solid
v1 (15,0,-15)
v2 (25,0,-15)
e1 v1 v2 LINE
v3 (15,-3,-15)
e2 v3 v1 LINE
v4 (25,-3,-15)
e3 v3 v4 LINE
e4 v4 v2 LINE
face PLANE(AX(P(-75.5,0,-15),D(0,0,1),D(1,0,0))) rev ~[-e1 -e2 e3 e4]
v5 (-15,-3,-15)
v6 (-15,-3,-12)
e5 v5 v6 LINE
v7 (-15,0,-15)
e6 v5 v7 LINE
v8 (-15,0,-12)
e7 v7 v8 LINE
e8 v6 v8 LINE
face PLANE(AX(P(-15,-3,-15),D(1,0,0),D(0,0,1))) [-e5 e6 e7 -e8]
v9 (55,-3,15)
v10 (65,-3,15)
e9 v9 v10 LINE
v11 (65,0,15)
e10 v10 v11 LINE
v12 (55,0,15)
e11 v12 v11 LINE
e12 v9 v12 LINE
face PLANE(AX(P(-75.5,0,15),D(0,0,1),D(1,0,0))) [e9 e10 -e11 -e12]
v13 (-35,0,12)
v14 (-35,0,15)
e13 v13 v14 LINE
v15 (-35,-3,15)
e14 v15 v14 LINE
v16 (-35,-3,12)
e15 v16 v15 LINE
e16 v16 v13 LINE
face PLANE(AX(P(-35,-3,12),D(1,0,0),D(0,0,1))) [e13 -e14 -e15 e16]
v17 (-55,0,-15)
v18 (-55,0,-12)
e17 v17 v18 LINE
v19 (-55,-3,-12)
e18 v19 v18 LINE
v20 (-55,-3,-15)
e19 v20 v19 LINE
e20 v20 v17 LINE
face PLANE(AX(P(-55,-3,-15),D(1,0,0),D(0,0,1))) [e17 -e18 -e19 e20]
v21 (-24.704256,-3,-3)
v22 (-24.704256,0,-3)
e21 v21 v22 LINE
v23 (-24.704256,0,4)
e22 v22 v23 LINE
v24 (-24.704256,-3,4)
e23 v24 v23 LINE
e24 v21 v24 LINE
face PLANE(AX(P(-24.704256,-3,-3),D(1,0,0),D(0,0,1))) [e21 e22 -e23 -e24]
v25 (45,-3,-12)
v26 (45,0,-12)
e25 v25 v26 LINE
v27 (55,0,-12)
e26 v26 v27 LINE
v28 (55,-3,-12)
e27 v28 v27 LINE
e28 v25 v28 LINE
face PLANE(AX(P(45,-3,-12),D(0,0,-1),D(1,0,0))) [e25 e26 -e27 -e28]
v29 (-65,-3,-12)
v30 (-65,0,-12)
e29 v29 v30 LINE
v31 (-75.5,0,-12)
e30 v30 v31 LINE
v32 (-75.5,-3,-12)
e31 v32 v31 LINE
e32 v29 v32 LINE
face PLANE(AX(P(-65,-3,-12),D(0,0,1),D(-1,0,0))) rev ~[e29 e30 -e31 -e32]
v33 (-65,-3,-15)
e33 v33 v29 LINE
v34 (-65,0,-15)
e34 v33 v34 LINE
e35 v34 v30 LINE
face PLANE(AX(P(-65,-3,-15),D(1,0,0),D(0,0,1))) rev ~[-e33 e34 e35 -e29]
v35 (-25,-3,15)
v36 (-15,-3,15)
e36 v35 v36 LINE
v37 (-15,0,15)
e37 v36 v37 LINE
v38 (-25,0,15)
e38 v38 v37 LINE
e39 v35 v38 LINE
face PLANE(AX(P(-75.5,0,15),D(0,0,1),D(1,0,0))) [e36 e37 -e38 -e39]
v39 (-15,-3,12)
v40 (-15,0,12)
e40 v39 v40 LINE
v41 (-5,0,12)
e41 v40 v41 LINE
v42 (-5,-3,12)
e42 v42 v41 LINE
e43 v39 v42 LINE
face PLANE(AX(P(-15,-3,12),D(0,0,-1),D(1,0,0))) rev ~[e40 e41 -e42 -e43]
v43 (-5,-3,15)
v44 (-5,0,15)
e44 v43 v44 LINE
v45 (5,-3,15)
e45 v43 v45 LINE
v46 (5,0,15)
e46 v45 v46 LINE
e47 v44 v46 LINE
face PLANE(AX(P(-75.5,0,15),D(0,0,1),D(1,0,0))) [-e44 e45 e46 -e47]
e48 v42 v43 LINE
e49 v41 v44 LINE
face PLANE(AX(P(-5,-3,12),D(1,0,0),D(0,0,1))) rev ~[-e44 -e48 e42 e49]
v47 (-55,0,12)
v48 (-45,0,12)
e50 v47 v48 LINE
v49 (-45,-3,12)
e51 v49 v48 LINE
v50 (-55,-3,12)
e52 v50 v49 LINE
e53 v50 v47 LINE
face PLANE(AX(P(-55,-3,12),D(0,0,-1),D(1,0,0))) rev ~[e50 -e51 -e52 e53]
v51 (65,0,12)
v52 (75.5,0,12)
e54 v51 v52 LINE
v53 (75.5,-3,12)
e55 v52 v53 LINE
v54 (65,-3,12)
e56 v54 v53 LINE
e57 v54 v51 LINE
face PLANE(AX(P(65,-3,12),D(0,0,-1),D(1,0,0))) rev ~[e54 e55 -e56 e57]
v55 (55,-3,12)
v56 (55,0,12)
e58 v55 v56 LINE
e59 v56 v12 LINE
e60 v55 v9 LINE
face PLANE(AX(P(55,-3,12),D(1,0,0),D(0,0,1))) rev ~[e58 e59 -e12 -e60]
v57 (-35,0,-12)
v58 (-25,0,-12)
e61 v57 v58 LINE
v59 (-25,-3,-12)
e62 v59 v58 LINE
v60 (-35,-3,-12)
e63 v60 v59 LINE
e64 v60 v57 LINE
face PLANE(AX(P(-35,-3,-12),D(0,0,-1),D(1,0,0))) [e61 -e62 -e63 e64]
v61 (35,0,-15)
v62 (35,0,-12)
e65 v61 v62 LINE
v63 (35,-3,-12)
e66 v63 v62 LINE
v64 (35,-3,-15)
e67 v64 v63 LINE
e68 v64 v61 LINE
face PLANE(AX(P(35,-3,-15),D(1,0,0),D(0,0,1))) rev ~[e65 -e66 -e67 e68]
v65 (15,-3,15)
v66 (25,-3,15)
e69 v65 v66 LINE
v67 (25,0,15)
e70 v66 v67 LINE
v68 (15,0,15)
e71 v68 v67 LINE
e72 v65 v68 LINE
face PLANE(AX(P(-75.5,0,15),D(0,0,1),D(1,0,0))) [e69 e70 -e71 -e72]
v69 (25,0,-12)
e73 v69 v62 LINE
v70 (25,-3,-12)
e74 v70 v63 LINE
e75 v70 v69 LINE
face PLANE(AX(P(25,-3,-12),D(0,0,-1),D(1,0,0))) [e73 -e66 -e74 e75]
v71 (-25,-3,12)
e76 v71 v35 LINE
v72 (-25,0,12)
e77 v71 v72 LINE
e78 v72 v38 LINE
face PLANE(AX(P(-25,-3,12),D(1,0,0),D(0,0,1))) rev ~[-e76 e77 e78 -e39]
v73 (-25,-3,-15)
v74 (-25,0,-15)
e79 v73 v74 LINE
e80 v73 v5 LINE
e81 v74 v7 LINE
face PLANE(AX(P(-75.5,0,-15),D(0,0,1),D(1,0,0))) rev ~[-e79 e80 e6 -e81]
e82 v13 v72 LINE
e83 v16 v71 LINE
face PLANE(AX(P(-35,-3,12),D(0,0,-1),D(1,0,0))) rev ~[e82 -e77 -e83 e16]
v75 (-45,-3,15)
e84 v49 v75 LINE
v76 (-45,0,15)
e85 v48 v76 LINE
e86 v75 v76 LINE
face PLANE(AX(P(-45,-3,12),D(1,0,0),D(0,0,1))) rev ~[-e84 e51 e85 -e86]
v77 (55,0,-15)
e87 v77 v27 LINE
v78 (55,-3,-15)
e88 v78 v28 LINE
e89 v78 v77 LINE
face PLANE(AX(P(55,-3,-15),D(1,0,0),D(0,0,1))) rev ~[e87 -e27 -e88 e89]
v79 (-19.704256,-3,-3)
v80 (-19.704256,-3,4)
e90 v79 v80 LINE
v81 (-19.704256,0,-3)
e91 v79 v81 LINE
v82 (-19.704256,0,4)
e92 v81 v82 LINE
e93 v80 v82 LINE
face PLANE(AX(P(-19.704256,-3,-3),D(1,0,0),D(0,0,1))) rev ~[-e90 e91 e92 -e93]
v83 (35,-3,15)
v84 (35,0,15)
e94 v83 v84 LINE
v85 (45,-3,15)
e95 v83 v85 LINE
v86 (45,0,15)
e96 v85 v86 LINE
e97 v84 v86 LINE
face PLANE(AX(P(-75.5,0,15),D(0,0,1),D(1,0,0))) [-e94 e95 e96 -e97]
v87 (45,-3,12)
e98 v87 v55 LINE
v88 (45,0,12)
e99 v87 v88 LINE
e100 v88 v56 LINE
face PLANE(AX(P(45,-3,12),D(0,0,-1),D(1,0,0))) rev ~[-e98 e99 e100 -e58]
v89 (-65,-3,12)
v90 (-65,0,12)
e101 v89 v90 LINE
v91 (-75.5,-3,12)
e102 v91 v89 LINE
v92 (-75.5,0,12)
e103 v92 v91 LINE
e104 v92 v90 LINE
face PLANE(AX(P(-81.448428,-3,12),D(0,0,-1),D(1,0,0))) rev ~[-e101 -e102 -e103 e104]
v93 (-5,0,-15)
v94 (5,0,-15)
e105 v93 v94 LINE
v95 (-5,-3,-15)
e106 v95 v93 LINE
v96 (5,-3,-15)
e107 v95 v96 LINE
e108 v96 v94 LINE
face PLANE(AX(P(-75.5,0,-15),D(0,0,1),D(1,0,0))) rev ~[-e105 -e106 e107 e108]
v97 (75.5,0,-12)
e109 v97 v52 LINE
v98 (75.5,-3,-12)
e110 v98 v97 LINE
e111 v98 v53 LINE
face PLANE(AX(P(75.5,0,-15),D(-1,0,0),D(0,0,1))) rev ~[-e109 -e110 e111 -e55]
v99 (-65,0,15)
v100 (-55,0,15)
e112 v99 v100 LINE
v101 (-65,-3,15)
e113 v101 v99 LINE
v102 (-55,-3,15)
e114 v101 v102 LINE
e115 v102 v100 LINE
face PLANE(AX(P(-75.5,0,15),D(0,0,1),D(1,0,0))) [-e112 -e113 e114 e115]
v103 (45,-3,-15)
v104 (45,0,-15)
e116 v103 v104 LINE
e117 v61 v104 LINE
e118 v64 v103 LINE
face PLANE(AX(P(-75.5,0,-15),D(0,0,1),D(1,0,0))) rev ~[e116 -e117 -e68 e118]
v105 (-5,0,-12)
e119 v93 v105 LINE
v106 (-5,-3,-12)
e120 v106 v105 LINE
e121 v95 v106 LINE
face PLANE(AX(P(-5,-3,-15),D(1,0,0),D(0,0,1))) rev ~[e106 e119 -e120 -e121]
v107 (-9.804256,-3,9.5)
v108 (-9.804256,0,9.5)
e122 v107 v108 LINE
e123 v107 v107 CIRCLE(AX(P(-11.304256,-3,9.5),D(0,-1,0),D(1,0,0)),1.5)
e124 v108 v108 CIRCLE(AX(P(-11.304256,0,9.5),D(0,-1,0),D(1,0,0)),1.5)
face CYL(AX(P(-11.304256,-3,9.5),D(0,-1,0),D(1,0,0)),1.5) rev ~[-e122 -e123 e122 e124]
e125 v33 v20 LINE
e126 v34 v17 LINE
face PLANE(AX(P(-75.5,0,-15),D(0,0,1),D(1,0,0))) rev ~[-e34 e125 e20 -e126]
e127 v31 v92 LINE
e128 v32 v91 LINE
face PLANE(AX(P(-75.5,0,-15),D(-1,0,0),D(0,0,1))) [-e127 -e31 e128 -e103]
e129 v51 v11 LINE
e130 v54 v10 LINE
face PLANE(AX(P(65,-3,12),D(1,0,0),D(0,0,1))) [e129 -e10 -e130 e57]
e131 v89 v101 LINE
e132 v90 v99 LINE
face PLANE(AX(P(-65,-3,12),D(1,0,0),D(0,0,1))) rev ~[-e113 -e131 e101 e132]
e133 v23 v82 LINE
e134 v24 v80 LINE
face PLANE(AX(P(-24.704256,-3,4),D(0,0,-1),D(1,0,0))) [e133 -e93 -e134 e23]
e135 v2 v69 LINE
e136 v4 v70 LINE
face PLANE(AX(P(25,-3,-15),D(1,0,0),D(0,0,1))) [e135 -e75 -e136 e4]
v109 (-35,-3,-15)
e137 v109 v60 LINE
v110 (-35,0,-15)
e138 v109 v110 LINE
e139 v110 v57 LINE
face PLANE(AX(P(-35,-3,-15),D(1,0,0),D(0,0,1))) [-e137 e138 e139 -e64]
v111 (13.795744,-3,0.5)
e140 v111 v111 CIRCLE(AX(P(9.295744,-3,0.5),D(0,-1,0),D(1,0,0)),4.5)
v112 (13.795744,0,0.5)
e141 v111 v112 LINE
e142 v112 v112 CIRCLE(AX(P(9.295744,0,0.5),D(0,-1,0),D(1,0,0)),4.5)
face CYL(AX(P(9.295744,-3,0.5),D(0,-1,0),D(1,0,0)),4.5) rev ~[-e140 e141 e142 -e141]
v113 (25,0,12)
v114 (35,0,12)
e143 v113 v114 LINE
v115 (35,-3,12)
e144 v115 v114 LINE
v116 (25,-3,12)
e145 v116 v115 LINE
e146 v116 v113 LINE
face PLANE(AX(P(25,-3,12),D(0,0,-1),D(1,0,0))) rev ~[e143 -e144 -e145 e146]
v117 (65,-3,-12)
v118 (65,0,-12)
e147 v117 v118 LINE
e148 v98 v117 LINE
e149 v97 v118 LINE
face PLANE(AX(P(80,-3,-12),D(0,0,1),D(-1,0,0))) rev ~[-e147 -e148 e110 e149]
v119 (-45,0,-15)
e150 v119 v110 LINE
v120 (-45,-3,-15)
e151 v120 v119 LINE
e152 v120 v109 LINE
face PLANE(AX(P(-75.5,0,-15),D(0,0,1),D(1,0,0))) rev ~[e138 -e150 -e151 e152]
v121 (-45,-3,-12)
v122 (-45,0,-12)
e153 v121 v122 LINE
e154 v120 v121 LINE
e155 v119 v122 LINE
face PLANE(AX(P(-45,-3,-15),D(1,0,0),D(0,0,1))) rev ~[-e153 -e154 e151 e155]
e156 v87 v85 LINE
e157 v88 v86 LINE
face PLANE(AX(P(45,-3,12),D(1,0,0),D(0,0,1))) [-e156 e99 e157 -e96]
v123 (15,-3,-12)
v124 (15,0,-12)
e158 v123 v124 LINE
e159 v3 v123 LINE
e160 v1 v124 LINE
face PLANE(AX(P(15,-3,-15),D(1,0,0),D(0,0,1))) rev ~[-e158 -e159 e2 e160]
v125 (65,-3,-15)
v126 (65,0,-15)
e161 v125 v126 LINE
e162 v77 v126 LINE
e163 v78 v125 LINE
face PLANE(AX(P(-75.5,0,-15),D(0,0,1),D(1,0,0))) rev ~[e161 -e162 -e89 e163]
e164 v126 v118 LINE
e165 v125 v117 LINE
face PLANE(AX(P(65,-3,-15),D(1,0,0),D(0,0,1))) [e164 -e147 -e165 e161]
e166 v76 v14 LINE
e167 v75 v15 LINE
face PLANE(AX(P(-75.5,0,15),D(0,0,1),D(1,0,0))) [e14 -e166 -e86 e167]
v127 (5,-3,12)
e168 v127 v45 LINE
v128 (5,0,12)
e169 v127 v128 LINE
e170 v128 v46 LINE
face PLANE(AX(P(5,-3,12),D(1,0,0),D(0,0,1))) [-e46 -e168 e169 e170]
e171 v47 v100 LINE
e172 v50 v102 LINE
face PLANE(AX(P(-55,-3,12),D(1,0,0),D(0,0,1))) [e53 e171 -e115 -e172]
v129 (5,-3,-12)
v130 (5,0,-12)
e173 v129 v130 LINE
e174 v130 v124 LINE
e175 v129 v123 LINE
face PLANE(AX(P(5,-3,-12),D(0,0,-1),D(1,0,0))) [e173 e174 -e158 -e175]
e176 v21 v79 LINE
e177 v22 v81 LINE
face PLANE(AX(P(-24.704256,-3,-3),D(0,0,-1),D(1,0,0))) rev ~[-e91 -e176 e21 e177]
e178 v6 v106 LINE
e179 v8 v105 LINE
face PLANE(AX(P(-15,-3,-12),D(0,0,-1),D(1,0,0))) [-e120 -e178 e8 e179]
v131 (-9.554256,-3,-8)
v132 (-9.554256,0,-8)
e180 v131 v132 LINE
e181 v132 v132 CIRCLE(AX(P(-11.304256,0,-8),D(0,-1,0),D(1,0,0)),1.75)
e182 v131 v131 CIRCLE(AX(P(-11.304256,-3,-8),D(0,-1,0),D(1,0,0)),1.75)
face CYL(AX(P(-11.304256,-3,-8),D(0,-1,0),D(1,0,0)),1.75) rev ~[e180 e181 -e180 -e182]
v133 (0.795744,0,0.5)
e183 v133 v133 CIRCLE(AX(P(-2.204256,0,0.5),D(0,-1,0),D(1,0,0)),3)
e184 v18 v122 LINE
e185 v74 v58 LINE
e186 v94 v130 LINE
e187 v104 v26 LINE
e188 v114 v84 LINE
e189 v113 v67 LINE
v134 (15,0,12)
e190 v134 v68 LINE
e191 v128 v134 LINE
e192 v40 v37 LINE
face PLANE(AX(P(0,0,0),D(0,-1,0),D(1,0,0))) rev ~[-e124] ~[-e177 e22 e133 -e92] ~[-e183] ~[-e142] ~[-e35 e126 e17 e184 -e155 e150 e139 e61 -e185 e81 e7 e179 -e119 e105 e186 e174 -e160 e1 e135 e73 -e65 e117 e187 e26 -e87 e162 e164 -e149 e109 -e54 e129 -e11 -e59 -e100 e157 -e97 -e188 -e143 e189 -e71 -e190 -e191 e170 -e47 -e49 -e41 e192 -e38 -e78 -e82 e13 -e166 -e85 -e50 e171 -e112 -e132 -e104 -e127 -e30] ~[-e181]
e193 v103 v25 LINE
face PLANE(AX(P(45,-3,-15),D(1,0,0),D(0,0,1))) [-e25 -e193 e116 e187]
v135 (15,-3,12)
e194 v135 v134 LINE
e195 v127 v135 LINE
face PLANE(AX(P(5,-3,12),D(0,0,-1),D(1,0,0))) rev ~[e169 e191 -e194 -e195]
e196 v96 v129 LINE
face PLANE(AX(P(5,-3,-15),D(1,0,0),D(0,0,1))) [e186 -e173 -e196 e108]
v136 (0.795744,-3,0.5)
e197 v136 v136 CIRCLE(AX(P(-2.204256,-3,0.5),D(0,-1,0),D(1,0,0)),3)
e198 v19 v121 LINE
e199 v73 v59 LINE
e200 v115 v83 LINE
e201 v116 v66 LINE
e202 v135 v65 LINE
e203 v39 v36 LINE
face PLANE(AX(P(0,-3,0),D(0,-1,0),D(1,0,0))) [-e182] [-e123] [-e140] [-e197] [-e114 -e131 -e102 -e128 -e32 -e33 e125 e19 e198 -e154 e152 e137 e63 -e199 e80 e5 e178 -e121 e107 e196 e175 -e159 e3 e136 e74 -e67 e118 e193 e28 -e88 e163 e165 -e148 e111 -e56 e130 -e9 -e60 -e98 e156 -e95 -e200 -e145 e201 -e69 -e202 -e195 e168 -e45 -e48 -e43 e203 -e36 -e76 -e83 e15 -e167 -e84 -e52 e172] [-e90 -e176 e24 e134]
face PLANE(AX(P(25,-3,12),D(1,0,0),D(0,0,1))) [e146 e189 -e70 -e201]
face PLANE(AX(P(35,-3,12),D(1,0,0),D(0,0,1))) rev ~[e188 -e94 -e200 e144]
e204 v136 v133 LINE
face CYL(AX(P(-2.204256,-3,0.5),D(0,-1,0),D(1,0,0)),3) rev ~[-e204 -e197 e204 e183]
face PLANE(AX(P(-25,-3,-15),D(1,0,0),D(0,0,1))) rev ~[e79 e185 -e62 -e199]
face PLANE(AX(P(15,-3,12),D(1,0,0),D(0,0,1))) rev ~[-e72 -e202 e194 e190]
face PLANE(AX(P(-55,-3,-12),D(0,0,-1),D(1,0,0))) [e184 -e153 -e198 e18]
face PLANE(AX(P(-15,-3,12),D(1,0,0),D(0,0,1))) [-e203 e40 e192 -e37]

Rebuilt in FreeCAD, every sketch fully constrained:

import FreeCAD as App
import Part
import Sketcher
from FreeCAD import Vector


def add_polygon(sketch, points):
    """Adds a closed chain of lines whose ends are joined by coincident constraints."""
    first, n = sketch.GeometryCount, len(points)
    for a, b in zip(points, points[1:] + points[:1]):
        sketch.addGeometry(Part.LineSegment(App.Vector(*a, 0), App.Vector(*b, 0)), False)
    for i in range(n):
        sketch.addConstraint(Sketcher.Constraint("Coincident", first + i, 2, first + (i + 1) % n, 1))

doc = App.newDocument("Part")
body = doc.addObject("PartDesign::Body", "Body")

sketch1 = body.newObject("Sketcher::SketchObject", "Sketch")
sketch1.AttachmentSupport = (doc.getObject("XZ_Plane"), [""])
sketch1.MapMode = "FlatFace"
add_polygon(sketch1, [(-76, 15), (-76, -15), (76, -15), (76, 15)])
sketch1.addConstraint([
    Sketcher.Constraint("Vertical", 0),
    Sketcher.Constraint("Horizontal", 1),
    Sketcher.Constraint("Vertical", 2),
    Sketcher.Constraint("Horizontal", 3),
    Sketcher.Constraint("Symmetric", 0, 2, 2, 2, -1, 1),
    Sketcher.Constraint("DistanceX", 1, 1, 1, 2, 151.0),
    Sketcher.Constraint("DistanceY", 0, 2, 0, 1, 30.0),
])
pad1 = body.newObject("PartDesign::Pad", "Pad")
pad1.Profile = sketch1
pad1.Length = 3

sketch2 = body.newObject("Sketcher::SketchObject", "Sketch001")
sketch2.AttachmentSupport = (doc.getObject("XZ_Plane"), [""])
sketch2.MapMode = "FlatFace"
sketch2.AttachmentOffset = App.Placement(Vector(0, 0, 3), App.Rotation())
add_polygon(sketch2, [(-81.4, -12), (-81.4, -15), (-65, -15), (-65, -12)])
add_polygon(sketch2, [(-81.4, 15), (-81.4, 12), (-65, 12), (-65, 15)])
add_polygon(sketch2, [(-55, -12), (-55, -15), (-45, -15), (-45, -12)])
add_polygon(sketch2, [(-55, 15), (-55, 12), (-45, 12), (-45, 15)])
add_polygon(sketch2, [(-35, -12), (-35, -15), (-25, -15), (-25, -12)])
add_polygon(sketch2, [(-35, 15), (-35, 12), (-25, 12), (-25, 15)])
add_polygon(sketch2, [(-15, -12), (-15, -15), (-5, -15), (-5, -12)])
add_polygon(sketch2, [(-15, 15), (-15, 12), (-5, 12), (-5, 15)])
add_polygon(sketch2, [(5, -12), (5, -15), (15, -15), (15, -12)])
add_polygon(sketch2, [(5, 15), (5, 12), (15, 12), (15, 15)])
add_polygon(sketch2, [(25, -12), (25, -15), (35, -15), (35, -12)])
add_polygon(sketch2, [(25, 15), (25, 12), (35, 12), (35, 15)])
add_polygon(sketch2, [(45, -12), (45, -15), (55, -15), (55, -12)])
add_polygon(sketch2, [(45, 15), (45, 12), (55, 12), (55, 15)])
add_polygon(sketch2, [(65, -12), (65, -15), (80, -15), (80, -12)])
add_polygon(sketch2, [(65, 15), (65, 12), (80, 12), (80, 15)])
sketch2.addGeometry(Part.Circle(Vector(9.3, 0.5, 0), Vector(0, 0, 1), 4.5), False)
sketch2.addGeometry(Part.Circle(Vector(-11.3, 9.5, 0), Vector(0, 0, 1), 1.5), False)
sketch2.addGeometry(Part.Circle(Vector(-11.3, -8, 0), Vector(0, 0, 1), 1.8), False)
sketch2.addGeometry(Part.Circle(Vector(-2.2, 0.5, 0), Vector(0, 0, 1), 3), False)
add_polygon(sketch2, [(-24.7, 4), (-24.7, -3), (-19.7, -3), (-19.7, 4)])
sketch2.addConstraint([
    Sketcher.Constraint("Vertical", 0),
    Sketcher.Constraint("Horizontal", 1),
    Sketcher.Constraint("Vertical", 2),
    Sketcher.Constraint("Horizontal", 3),
    Sketcher.Constraint("Vertical", 4),
    Sketcher.Constraint("Horizontal", 5),
    Sketcher.Constraint("Vertical", 6),
    Sketcher.Constraint("Horizontal", 7),
    Sketcher.Constraint("Vertical", 8),
    Sketcher.Constraint("Horizontal", 9),
    Sketcher.Constraint("Vertical", 10),
    Sketcher.Constraint("Horizontal", 11),
    Sketcher.Constraint("Vertical", 12),
    Sketcher.Constraint("Horizontal", 13),
    Sketcher.Constraint("Vertical", 14),
    Sketcher.Constraint("Horizontal", 15),
    Sketcher.Constraint("Vertical", 16),
    Sketcher.Constraint("Horizontal", 17),
    Sketcher.Constraint("Vertical", 18),
    Sketcher.Constraint("Horizontal", 19),
    Sketcher.Constraint("Vertical", 20),
    Sketcher.Constraint("Horizontal", 21),
    Sketcher.Constraint("Vertical", 22),
    Sketcher.Constraint("Horizontal", 23),
    Sketcher.Constraint("Vertical", 24),
    Sketcher.Constraint("Horizontal", 25),
    Sketcher.Constraint("Vertical", 26),
    Sketcher.Constraint("Horizontal", 27),
    Sketcher.Constraint("Vertical", 28),
    Sketcher.Constraint("Horizontal", 29),
    Sketcher.Constraint("Vertical", 30),
    Sketcher.Constraint("Horizontal", 31),
    Sketcher.Constraint("Vertical", 32),
    Sketcher.Constraint("Horizontal", 33),
    Sketcher.Constraint("Vertical", 34),
    Sketcher.Constraint("Horizontal", 35),
    Sketcher.Constraint("Vertical", 36),
    Sketcher.Constraint("Horizontal", 37),
    Sketcher.Constraint("Vertical", 38),
    Sketcher.Constraint("Horizontal", 39),
    Sketcher.Constraint("Vertical", 40),
    Sketcher.Constraint("Horizontal", 41),
    Sketcher.Constraint("Vertical", 42),
    Sketcher.Constraint("Horizontal", 43),
    Sketcher.Constraint("Vertical", 44),
    Sketcher.Constraint("Horizontal", 45),
    Sketcher.Constraint("Vertical", 46),
    Sketcher.Constraint("Horizontal", 47),
    Sketcher.Constraint("Vertical", 48),
    Sketcher.Constraint("Horizontal", 49),
    Sketcher.Constraint("Vertical", 50),
    Sketcher.Constraint("Horizontal", 51),
    Sketcher.Constraint("Vertical", 52),
    Sketcher.Constraint("Horizontal", 53),
    Sketcher.Constraint("Vertical", 54),
    Sketcher.Constraint("Horizontal", 55),
    Sketcher.Constraint("Vertical", 56),
    Sketcher.Constraint("Horizontal", 57),
    Sketcher.Constraint("Vertical", 58),
    Sketcher.Constraint("Horizontal", 59),
    Sketcher.Constraint("Vertical", 60),
    Sketcher.Constraint("Horizontal", 61),
    Sketcher.Constraint("Vertical", 62),
    Sketcher.Constraint("Horizontal", 63),
    Sketcher.Constraint("Vertical", 68),
    Sketcher.Constraint("Horizontal", 69),
    Sketcher.Constraint("Vertical", 70),
    Sketcher.Constraint("Horizontal", 71),
    Sketcher.Constraint("Symmetric", 30, 2, 32, 2, -1, 1),
    Sketcher.Constraint("Symmetric", 28, 2, 34, 2, -1, 1),
    Sketcher.Constraint("Symmetric", 26, 2, 36, 2, -1, 1),
    Sketcher.Constraint("Symmetric", 24, 2, 38, 2, -1, 1),
    Sketcher.Constraint("Symmetric", 22, 2, 40, 2, -1, 1),
    Sketcher.Constraint("Symmetric", 20, 2, 42, 2, -1, 1),
    Sketcher.Constraint("Symmetric", 18, 2, 44, 2, -1, 1),
    Sketcher.Constraint("Symmetric", 16, 2, 46, 2, -1, 1),
    Sketcher.Constraint("Symmetric", 14, 2, 48, 2, -1, 1),
    Sketcher.Constraint("Symmetric", 12, 2, 50, 2, -1, 1),
    Sketcher.Constraint("Symmetric", 10, 2, 52, 2, -1, 1),
    Sketcher.Constraint("Symmetric", 8, 2, 54, 2, -1, 1),
    Sketcher.Constraint("Symmetric", 6, 2, 56, 2, -1, 1),
    Sketcher.Constraint("Symmetric", 2, 2, 60, 2, -1, 1),
    Sketcher.Constraint("Symmetric", 25, 2, 32, 2, -2),
    Sketcher.Constraint("Symmetric", 27, 2, 34, 2, -2),
    Sketcher.Constraint("Symmetric", 17, 2, 40, 2, -2),
    Sketcher.Constraint("Symmetric", 19, 2, 42, 2, -2),
    Sketcher.Constraint("Symmetric", 9, 2, 48, 2, -2),
    Sketcher.Constraint("Symmetric", 11, 2, 50, 2, -2),
    Sketcher.Constraint("Symmetric", 1, 2, 56, 2, -2),
    Sketcher.Constraint("Symmetric", 3, 2, 4, 2, -1),
    Sketcher.Constraint("Symmetric", 58, 2, 61, 2, -1),
    Sketcher.Constraint("Horizontal", 64, 3, 67, 3),
    Sketcher.Constraint("Horizontal", 1, 2, 8, 2),
    Sketcher.Constraint("Horizontal", 3, 2, 10, 2),
    Sketcher.Constraint("Horizontal", 9, 2, 16, 2),
    Sketcher.Constraint("Horizontal", 11, 2, 18, 2),
    Sketcher.Constraint("Horizontal", 17, 2, 24, 2),
    Sketcher.Constraint("Horizontal", 19, 2, 26, 2),
    Sketcher.Constraint("Horizontal", 55, 2, 62, 2),
    Sketcher.Constraint("Vertical", 65, 3, 66, 3),
    Sketcher.Constraint("Equal", 15, 17),
    Sketcher.Constraint("Equal", 23, 25),
    Sketcher.Constraint("Diameter", 64, 9.0),
    Sketcher.Constraint("Diameter", 65, 3.0),
    Sketcher.Constraint("Diameter", 67, 6.0),
    Sketcher.Constraint("Diameter", 66, 3.5),
    Sketcher.Constraint("DistanceX", 9, 1, 9, 2, 10.0),
    Sketcher.Constraint("DistanceX", 57, 1, 57, 2, 15.0),
    Sketcher.Constraint("DistanceX", 69, 1, 69, 2, 5.0),
    Sketcher.Constraint("DistanceY", 0, 2, 0, 1, 3.0),
    Sketcher.Constraint("DistanceY", 68, 2, 68, 1, 7.0),
    Sketcher.Constraint("DistanceY", 66, 3, -1, 1, 8.0),
    Sketcher.Constraint("DistanceY", 0, 2, -1, 1, 15.0),
    Sketcher.Constraint("DistanceX", 1, 2, -1, 1, 65.0),
    Sketcher.Constraint("DistanceX", 8, 2, -1, 1, 55.0),
    Sketcher.Constraint("DistanceX", 16, 2, -1, 1, 35.0),
    Sketcher.Constraint("DistanceX", 24, 2, -1, 1, 15.0),
    Sketcher.Constraint("DistanceY", 68, 2, -1, 1, 3.0),
    Sketcher.Constraint("DistanceY", -1, 1, 64, 3, 0.5),
    Sketcher.Constraint("DistanceY", -1, 1, 65, 3, 9.5),
    Sketcher.Constraint("DistanceX", 1, 1, 1, 2, 16.448428),
    Sketcher.Constraint("DistanceX", -1, 1, 64, 3, 9.295744),
    Sketcher.Constraint("DistanceX", 65, 3, -1, 1, 11.304256),
    Sketcher.Constraint("DistanceX", 67, 3, -1, 1, 2.204256),
    Sketcher.Constraint("DistanceX", 68, 2, -1, 1, 24.704256),
])
pocket1 = body.newObject("PartDesign::Pocket", "Pocket")
pocket1.Profile = sketch2
pocket1.Length = 25

doc.recompute()
